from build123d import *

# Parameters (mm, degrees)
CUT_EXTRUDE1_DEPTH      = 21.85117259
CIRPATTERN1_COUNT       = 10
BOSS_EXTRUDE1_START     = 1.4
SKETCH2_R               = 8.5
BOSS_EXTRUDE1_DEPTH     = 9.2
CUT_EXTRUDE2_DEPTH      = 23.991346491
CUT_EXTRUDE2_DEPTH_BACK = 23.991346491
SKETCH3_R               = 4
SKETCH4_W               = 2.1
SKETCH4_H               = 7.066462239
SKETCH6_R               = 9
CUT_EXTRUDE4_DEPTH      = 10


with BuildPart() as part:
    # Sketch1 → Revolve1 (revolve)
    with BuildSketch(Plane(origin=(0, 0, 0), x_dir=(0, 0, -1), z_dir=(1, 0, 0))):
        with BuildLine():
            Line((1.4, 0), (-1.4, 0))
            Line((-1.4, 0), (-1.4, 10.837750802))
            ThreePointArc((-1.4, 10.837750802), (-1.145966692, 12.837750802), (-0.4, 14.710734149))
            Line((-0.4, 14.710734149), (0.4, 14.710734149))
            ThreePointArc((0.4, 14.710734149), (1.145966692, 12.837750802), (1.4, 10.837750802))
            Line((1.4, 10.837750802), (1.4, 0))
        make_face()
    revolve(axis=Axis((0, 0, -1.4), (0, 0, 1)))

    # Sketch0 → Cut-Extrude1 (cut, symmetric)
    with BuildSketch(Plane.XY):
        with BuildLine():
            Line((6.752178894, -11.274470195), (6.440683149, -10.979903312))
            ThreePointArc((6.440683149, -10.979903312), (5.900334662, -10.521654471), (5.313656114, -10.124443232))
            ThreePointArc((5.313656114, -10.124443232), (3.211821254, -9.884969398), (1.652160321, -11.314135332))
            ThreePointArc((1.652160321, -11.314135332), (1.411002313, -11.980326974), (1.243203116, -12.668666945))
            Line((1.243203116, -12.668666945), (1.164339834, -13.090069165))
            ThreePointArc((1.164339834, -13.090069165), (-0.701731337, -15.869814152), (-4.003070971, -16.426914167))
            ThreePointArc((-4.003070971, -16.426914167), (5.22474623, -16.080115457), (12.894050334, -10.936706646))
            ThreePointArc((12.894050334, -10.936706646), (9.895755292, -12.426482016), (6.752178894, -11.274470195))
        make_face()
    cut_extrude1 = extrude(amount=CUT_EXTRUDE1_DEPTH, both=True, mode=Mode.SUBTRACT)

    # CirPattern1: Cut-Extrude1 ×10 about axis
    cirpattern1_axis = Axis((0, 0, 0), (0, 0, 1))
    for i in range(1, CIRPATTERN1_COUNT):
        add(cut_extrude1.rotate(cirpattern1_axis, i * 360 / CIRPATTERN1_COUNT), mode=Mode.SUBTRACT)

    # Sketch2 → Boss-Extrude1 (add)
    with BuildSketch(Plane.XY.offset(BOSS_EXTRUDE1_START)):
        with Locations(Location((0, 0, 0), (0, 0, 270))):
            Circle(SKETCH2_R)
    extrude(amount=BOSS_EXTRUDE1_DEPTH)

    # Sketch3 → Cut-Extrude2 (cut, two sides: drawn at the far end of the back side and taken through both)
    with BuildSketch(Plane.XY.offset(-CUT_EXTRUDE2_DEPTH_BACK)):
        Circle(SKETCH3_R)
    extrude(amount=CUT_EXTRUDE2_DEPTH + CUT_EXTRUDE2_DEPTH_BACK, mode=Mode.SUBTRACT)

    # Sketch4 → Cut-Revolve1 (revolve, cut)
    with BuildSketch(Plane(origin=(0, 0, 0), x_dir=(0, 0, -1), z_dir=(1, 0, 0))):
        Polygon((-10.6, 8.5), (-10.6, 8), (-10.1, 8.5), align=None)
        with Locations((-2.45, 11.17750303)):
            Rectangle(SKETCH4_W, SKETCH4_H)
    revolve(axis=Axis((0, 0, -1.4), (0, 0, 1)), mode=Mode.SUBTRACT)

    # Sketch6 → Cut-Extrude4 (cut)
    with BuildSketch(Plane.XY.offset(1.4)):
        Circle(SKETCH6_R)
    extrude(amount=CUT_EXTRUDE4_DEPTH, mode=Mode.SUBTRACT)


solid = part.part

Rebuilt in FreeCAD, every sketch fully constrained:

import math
import FreeCAD as App
import Part
import Sketcher
from FreeCAD import Vector
Q = App.Units.Quantity


def add_polygon(sketch, points):
    """Adds a closed chain of lines whose ends are joined by coincident constraints."""
    first, n = sketch.GeometryCount, len(points)
    for a, b in zip(points, points[1:] + points[:1]):
        sketch.addGeometry(Part.LineSegment(App.Vector(*a, 0), App.Vector(*b, 0)), False)
    for i in range(n):
        sketch.addConstraint(Sketcher.Constraint("Coincident", first + i, 2, first + (i + 1) % n, 1))

doc = App.newDocument("Part")
body = doc.addObject("PartDesign::Body", "Body")

# Sketch on YZ plane
sketch1 = body.newObject("Sketcher::SketchObject", "Sketch")
sketch1.AttachmentSupport = (doc.getObject("YZ_Plane"), [""])
sketch1.MapMode = "FlatFace"
sketch1.addGeometry([
    Part.LineSegment(Vector(0, 1.4, 0), Vector(0, -1.4, 0)),  # 0
    Part.LineSegment(Vector(0, -1.4, 0), Vector(10.8, -1.4, 0)),  # 1
    Part.ArcOfCircle(Part.Circle(Vector(10.8, 6.6, 0), Vector(0, 0, 1), 8), math.radians(-90), math.radians(-61)),  # 2
    Part.LineSegment(Vector(14.7, -0.4, 0), Vector(14.7, 0.4, 0)),  # 3
    Part.ArcOfCircle(Part.Circle(Vector(10.8, -6.6, 0), Vector(0, 0, 1), 8), math.radians(61), math.radians(90)),  # 4
    Part.LineSegment(Vector(10.8, 1.4, 0), Vector(0, 1.4, 0)),  # 5
], False)
sketch1.addConstraint([
    Sketcher.Constraint("Coincident", 0, 2, 1, 1),
    Sketcher.Constraint("Tangent", 1, 2, 2, 1),
    Sketcher.Constraint("Coincident", 2, 2, 3, 1),
    Sketcher.Constraint("Coincident", 3, 2, 4, 1),
    Sketcher.Constraint("Tangent", 4, 2, 5, 1),
    Sketcher.Constraint("Coincident", 5, 2, 0, 1),
    Sketcher.Constraint("Vertical", 0),
    Sketcher.Constraint("Horizontal", 1),
    Sketcher.Constraint("Vertical", 3),
    Sketcher.Constraint("Horizontal", 5),
    Sketcher.Constraint("Equal", 2, 4),
    Sketcher.Constraint("Symmetric", 0, 2, 5, 2, -1, 1),
    Sketcher.Constraint("Vertical", 2, 3, 4, 3),
    Sketcher.Constraint("Radius", 2, 8.0),
    Sketcher.Constraint("DistanceY", 0, 2, 0, 1, 2.8),
    Sketcher.Constraint("DistanceY", 3, 1, 3, 2, 0.8),
    Sketcher.Constraint("DistanceX", 1, 1, 1, 2, 10.837751),
])
revolution = body.newObject("PartDesign::Revolution", "Revolution")
revolution.Profile = sketch1
revolution.ReferenceAxis = (sketch1, ["V_Axis"])
revolution.Angle = 360

# Sketch on XY plane
sketch2 = body.newObject("Sketcher::SketchObject", "Sketch001")
sketch2.AttachmentSupport = (doc.getObject("XY_Plane"), [""])
sketch2.MapMode = "FlatFace"
sketch2.addGeometry([
    Part.LineSegment(Vector(6.75, -11.27, 0), Vector(6.44, -10.98, 0)),  # 0
    Part.ArcOfCircle(Part.Circle(Vector(1.94, -15.74, 0), Vector(0, 0, 1), 6.55), math.radians(46.6), math.radians(59)),  # 1
    Part.ArcOfCircle(Part.Circle(Vector(4, -12.31, 0), Vector(0, 0, 1), 2.55), math.radians(59), math.radians(157)),  # 2
    Part.ArcOfCircle(Part.Circle(Vector(7.68, -13.87, 0), Vector(0, 0, 1), 6.55), math.radians(157), math.radians(169.4)),  # 3
    Part.LineSegment(Vector(1.24, -12.67, 0), Vector(1.16, -13.09, 0)),  # 4
    Part.ArcOfCircle(Part.Circle(Vector(-3, -12.31, 0), Vector(0, 0, 1), 4.24), math.radians(-104), math.radians(-11)),  # 5
    Part.ArcOfCircle(Part.Circle(Vector(0, 0, 0), Vector(0, 0, 1), 16.91), math.radians(-104), math.radians(-40)),  # 6
    Part.ArcOfCircle(Part.Circle(Vector(9.66, -8.2, 0), Vector(0, 0, 1), 4.24), math.radians(-133), math.radians(-40)),  # 7
], False)
sketch2.addConstraint([
    Sketcher.Constraint("Tangent", 0, 2, 1, 1),
    Sketcher.Constraint("Tangent", 1, 2, 2, 1),
    Sketcher.Constraint("Tangent", 2, 2, 3, 1),
    Sketcher.Constraint("Tangent", 3, 2, 4, 1),
    Sketcher.Constraint("Tangent", 4, 2, 5, 2),
    Sketcher.Constraint("Tangent", 5, 1, 6, 1),
    Sketcher.Constraint("Tangent", 6, 2, 7, 2),
    Sketcher.Constraint("Tangent", 7, 1, 0, 1),
    Sketcher.Constraint("Coincident", 6, 3, -1, 1),
    Sketcher.Constraint("Equal", 1, 3),
    Sketcher.Constraint("Equal", 5, 7),
    Sketcher.Constraint("Horizontal", 2, 3, 5, 3),
    Sketcher.Constraint("Equal", 0, 4),
    Sketcher.Constraint("DistanceX", -1, 1, 2, 3, 4.0),
    Sketcher.Constraint("DistanceX", 5, 3, -1, 1, 3.0),
    Sketcher.Constraint("Angle", 0, Q("136.6 deg")),
    Sketcher.Constraint("Angle", 4, Q("-100.6 deg")),
    Sketcher.Constraint("Radius", 1, 6.5506),
    Sketcher.Constraint("Radius", 2, 2.5506),
    Sketcher.Constraint("Radius", 5, 4.236637),
    Sketcher.Constraint("Radius", 6, 16.907634),
])
pocket1 = body.newObject("PartDesign::Pocket", "Pocket")
pocket1.Profile = sketch2
pocket1.Length = 43.702345
pocket1.Midplane = True
doc.recompute()

polarpattern = body.newObject("PartDesign::PolarPattern", "PolarPattern")
polarpattern.Originals = [pocket1]
polarpattern.Axis = (doc.getObject("Z_Axis"), [""])
polarpattern.Angle = 360
polarpattern.Occurrences = 10
body.Tip = polarpattern

# Sketch on XY plane
sketch3 = body.newObject("Sketcher::SketchObject", "Sketch002")
sketch3.AttachmentSupport = (doc.getObject("XY_Plane"), [""])
sketch3.MapMode = "FlatFace"
sketch3.AttachmentOffset = App.Placement(Vector(0, 0, 1.4), App.Rotation())
sketch3.addGeometry(Part.Circle(Vector(0, 0, 0), Vector(0, 0, 1), 8), False)
sketch3.addConstraint([
    Sketcher.Constraint("Coincident", 0, 3, -1, 1),
    Sketcher.Constraint("Diameter", 0, 17.0),
])
pad1 = body.newObject("PartDesign::Pad", "Pad")
pad1.Profile = sketch3
pad1.Length = 9.2

# Sketch on XY plane
sketch4 = body.newObject("Sketcher::SketchObject", "Sketch003")
sketch4.AttachmentSupport = (doc.getObject("XY_Plane"), [""])
sketch4.MapMode = "FlatFace"
sketch4.addGeometry(Part.Circle(Vector(0, 0, 0), Vector(0, 0, 1), 4), False)
sketch4.addConstraint([
    Sketcher.Constraint("Coincident", 0, 3, -1, 1),
    Sketcher.Constraint("Diameter", 0, 8.0),
])
pocket2 = body.newObject("PartDesign::Pocket", "Pocket001")
pocket2.Profile = sketch4
pocket2.Type = "ThroughAll"
pocket2.Midplane = True

# Sketch on YZ plane
sketch5 = body.newObject("Sketcher::SketchObject", "Sketch004")
sketch5.AttachmentSupport = (doc.getObject("YZ_Plane"), [""])
sketch5.MapMode = "FlatFace"
add_polygon(sketch5, [(8.5, 10.6), (8, 10.6), (8.5, 10.1)])  # lines 0-2
add_polygon(sketch5, [(14.7, 3.5), (7.6, 3.5), (7.6, 1.4), (14.7, 1.4)])  # lines 3-6
sketch5.addConstraint([
    Sketcher.Constraint("Horizontal", 0),
    Sketcher.Constraint("Vertical", 2),
    Sketcher.Constraint("Horizontal", 3),
    Sketcher.Constraint("Vertical", 4),
    Sketcher.Constraint("Horizontal", 5),
    Sketcher.Constraint("Vertical", 6),
    Sketcher.Constraint("Equal", 0, 2),
    Sketcher.Constraint("DistanceX", 0, 2, 0, 1, 0.5),
    Sketcher.Constraint("DistanceY", 4, 2, 4, 1, 2.1),
    Sketcher.Constraint("DistanceX", -1, 1, 0, 2, 8.0),
    Sketcher.Constraint("DistanceY", -1, 1, 0, 2, 10.6),
    Sketcher.Constraint("DistanceY", -1, 1, 3, 2, 3.5),
    Sketcher.Constraint("DistanceX", 3, 2, 3, 1, 7.066462),
    Sketcher.Constraint("DistanceX", -1, 1, 3, 2, 7.644272),
])
groove = body.newObject("PartDesign::Groove", "Groove")
groove.Profile = sketch5
groove.ReferenceAxis = (sketch5, ["V_Axis"])
groove.Angle = 360

# Sketch on XY plane
sketch6 = body.newObject("Sketcher::SketchObject", "Sketch005")
sketch6.AttachmentSupport = (doc.getObject("XY_Plane"), [""])
sketch6.MapMode = "FlatFace"
sketch6.AttachmentOffset = App.Placement(Vector(0, 0, 1.4), App.Rotation())
sketch6.addGeometry(Part.Circle(Vector(0, 0, 0), Vector(0, 0, 1), 9), False)
sketch6.addConstraint([
    Sketcher.Constraint("Coincident", 0, 3, -1, 1),
    Sketcher.Constraint("Diameter", 0, 18.0),
])
pocket3 = body.newObject("PartDesign::Pocket", "Pocket002")
pocket3.Profile = sketch6
pocket3.Length = 10
pocket3.Reversed = True

doc.recompute()
